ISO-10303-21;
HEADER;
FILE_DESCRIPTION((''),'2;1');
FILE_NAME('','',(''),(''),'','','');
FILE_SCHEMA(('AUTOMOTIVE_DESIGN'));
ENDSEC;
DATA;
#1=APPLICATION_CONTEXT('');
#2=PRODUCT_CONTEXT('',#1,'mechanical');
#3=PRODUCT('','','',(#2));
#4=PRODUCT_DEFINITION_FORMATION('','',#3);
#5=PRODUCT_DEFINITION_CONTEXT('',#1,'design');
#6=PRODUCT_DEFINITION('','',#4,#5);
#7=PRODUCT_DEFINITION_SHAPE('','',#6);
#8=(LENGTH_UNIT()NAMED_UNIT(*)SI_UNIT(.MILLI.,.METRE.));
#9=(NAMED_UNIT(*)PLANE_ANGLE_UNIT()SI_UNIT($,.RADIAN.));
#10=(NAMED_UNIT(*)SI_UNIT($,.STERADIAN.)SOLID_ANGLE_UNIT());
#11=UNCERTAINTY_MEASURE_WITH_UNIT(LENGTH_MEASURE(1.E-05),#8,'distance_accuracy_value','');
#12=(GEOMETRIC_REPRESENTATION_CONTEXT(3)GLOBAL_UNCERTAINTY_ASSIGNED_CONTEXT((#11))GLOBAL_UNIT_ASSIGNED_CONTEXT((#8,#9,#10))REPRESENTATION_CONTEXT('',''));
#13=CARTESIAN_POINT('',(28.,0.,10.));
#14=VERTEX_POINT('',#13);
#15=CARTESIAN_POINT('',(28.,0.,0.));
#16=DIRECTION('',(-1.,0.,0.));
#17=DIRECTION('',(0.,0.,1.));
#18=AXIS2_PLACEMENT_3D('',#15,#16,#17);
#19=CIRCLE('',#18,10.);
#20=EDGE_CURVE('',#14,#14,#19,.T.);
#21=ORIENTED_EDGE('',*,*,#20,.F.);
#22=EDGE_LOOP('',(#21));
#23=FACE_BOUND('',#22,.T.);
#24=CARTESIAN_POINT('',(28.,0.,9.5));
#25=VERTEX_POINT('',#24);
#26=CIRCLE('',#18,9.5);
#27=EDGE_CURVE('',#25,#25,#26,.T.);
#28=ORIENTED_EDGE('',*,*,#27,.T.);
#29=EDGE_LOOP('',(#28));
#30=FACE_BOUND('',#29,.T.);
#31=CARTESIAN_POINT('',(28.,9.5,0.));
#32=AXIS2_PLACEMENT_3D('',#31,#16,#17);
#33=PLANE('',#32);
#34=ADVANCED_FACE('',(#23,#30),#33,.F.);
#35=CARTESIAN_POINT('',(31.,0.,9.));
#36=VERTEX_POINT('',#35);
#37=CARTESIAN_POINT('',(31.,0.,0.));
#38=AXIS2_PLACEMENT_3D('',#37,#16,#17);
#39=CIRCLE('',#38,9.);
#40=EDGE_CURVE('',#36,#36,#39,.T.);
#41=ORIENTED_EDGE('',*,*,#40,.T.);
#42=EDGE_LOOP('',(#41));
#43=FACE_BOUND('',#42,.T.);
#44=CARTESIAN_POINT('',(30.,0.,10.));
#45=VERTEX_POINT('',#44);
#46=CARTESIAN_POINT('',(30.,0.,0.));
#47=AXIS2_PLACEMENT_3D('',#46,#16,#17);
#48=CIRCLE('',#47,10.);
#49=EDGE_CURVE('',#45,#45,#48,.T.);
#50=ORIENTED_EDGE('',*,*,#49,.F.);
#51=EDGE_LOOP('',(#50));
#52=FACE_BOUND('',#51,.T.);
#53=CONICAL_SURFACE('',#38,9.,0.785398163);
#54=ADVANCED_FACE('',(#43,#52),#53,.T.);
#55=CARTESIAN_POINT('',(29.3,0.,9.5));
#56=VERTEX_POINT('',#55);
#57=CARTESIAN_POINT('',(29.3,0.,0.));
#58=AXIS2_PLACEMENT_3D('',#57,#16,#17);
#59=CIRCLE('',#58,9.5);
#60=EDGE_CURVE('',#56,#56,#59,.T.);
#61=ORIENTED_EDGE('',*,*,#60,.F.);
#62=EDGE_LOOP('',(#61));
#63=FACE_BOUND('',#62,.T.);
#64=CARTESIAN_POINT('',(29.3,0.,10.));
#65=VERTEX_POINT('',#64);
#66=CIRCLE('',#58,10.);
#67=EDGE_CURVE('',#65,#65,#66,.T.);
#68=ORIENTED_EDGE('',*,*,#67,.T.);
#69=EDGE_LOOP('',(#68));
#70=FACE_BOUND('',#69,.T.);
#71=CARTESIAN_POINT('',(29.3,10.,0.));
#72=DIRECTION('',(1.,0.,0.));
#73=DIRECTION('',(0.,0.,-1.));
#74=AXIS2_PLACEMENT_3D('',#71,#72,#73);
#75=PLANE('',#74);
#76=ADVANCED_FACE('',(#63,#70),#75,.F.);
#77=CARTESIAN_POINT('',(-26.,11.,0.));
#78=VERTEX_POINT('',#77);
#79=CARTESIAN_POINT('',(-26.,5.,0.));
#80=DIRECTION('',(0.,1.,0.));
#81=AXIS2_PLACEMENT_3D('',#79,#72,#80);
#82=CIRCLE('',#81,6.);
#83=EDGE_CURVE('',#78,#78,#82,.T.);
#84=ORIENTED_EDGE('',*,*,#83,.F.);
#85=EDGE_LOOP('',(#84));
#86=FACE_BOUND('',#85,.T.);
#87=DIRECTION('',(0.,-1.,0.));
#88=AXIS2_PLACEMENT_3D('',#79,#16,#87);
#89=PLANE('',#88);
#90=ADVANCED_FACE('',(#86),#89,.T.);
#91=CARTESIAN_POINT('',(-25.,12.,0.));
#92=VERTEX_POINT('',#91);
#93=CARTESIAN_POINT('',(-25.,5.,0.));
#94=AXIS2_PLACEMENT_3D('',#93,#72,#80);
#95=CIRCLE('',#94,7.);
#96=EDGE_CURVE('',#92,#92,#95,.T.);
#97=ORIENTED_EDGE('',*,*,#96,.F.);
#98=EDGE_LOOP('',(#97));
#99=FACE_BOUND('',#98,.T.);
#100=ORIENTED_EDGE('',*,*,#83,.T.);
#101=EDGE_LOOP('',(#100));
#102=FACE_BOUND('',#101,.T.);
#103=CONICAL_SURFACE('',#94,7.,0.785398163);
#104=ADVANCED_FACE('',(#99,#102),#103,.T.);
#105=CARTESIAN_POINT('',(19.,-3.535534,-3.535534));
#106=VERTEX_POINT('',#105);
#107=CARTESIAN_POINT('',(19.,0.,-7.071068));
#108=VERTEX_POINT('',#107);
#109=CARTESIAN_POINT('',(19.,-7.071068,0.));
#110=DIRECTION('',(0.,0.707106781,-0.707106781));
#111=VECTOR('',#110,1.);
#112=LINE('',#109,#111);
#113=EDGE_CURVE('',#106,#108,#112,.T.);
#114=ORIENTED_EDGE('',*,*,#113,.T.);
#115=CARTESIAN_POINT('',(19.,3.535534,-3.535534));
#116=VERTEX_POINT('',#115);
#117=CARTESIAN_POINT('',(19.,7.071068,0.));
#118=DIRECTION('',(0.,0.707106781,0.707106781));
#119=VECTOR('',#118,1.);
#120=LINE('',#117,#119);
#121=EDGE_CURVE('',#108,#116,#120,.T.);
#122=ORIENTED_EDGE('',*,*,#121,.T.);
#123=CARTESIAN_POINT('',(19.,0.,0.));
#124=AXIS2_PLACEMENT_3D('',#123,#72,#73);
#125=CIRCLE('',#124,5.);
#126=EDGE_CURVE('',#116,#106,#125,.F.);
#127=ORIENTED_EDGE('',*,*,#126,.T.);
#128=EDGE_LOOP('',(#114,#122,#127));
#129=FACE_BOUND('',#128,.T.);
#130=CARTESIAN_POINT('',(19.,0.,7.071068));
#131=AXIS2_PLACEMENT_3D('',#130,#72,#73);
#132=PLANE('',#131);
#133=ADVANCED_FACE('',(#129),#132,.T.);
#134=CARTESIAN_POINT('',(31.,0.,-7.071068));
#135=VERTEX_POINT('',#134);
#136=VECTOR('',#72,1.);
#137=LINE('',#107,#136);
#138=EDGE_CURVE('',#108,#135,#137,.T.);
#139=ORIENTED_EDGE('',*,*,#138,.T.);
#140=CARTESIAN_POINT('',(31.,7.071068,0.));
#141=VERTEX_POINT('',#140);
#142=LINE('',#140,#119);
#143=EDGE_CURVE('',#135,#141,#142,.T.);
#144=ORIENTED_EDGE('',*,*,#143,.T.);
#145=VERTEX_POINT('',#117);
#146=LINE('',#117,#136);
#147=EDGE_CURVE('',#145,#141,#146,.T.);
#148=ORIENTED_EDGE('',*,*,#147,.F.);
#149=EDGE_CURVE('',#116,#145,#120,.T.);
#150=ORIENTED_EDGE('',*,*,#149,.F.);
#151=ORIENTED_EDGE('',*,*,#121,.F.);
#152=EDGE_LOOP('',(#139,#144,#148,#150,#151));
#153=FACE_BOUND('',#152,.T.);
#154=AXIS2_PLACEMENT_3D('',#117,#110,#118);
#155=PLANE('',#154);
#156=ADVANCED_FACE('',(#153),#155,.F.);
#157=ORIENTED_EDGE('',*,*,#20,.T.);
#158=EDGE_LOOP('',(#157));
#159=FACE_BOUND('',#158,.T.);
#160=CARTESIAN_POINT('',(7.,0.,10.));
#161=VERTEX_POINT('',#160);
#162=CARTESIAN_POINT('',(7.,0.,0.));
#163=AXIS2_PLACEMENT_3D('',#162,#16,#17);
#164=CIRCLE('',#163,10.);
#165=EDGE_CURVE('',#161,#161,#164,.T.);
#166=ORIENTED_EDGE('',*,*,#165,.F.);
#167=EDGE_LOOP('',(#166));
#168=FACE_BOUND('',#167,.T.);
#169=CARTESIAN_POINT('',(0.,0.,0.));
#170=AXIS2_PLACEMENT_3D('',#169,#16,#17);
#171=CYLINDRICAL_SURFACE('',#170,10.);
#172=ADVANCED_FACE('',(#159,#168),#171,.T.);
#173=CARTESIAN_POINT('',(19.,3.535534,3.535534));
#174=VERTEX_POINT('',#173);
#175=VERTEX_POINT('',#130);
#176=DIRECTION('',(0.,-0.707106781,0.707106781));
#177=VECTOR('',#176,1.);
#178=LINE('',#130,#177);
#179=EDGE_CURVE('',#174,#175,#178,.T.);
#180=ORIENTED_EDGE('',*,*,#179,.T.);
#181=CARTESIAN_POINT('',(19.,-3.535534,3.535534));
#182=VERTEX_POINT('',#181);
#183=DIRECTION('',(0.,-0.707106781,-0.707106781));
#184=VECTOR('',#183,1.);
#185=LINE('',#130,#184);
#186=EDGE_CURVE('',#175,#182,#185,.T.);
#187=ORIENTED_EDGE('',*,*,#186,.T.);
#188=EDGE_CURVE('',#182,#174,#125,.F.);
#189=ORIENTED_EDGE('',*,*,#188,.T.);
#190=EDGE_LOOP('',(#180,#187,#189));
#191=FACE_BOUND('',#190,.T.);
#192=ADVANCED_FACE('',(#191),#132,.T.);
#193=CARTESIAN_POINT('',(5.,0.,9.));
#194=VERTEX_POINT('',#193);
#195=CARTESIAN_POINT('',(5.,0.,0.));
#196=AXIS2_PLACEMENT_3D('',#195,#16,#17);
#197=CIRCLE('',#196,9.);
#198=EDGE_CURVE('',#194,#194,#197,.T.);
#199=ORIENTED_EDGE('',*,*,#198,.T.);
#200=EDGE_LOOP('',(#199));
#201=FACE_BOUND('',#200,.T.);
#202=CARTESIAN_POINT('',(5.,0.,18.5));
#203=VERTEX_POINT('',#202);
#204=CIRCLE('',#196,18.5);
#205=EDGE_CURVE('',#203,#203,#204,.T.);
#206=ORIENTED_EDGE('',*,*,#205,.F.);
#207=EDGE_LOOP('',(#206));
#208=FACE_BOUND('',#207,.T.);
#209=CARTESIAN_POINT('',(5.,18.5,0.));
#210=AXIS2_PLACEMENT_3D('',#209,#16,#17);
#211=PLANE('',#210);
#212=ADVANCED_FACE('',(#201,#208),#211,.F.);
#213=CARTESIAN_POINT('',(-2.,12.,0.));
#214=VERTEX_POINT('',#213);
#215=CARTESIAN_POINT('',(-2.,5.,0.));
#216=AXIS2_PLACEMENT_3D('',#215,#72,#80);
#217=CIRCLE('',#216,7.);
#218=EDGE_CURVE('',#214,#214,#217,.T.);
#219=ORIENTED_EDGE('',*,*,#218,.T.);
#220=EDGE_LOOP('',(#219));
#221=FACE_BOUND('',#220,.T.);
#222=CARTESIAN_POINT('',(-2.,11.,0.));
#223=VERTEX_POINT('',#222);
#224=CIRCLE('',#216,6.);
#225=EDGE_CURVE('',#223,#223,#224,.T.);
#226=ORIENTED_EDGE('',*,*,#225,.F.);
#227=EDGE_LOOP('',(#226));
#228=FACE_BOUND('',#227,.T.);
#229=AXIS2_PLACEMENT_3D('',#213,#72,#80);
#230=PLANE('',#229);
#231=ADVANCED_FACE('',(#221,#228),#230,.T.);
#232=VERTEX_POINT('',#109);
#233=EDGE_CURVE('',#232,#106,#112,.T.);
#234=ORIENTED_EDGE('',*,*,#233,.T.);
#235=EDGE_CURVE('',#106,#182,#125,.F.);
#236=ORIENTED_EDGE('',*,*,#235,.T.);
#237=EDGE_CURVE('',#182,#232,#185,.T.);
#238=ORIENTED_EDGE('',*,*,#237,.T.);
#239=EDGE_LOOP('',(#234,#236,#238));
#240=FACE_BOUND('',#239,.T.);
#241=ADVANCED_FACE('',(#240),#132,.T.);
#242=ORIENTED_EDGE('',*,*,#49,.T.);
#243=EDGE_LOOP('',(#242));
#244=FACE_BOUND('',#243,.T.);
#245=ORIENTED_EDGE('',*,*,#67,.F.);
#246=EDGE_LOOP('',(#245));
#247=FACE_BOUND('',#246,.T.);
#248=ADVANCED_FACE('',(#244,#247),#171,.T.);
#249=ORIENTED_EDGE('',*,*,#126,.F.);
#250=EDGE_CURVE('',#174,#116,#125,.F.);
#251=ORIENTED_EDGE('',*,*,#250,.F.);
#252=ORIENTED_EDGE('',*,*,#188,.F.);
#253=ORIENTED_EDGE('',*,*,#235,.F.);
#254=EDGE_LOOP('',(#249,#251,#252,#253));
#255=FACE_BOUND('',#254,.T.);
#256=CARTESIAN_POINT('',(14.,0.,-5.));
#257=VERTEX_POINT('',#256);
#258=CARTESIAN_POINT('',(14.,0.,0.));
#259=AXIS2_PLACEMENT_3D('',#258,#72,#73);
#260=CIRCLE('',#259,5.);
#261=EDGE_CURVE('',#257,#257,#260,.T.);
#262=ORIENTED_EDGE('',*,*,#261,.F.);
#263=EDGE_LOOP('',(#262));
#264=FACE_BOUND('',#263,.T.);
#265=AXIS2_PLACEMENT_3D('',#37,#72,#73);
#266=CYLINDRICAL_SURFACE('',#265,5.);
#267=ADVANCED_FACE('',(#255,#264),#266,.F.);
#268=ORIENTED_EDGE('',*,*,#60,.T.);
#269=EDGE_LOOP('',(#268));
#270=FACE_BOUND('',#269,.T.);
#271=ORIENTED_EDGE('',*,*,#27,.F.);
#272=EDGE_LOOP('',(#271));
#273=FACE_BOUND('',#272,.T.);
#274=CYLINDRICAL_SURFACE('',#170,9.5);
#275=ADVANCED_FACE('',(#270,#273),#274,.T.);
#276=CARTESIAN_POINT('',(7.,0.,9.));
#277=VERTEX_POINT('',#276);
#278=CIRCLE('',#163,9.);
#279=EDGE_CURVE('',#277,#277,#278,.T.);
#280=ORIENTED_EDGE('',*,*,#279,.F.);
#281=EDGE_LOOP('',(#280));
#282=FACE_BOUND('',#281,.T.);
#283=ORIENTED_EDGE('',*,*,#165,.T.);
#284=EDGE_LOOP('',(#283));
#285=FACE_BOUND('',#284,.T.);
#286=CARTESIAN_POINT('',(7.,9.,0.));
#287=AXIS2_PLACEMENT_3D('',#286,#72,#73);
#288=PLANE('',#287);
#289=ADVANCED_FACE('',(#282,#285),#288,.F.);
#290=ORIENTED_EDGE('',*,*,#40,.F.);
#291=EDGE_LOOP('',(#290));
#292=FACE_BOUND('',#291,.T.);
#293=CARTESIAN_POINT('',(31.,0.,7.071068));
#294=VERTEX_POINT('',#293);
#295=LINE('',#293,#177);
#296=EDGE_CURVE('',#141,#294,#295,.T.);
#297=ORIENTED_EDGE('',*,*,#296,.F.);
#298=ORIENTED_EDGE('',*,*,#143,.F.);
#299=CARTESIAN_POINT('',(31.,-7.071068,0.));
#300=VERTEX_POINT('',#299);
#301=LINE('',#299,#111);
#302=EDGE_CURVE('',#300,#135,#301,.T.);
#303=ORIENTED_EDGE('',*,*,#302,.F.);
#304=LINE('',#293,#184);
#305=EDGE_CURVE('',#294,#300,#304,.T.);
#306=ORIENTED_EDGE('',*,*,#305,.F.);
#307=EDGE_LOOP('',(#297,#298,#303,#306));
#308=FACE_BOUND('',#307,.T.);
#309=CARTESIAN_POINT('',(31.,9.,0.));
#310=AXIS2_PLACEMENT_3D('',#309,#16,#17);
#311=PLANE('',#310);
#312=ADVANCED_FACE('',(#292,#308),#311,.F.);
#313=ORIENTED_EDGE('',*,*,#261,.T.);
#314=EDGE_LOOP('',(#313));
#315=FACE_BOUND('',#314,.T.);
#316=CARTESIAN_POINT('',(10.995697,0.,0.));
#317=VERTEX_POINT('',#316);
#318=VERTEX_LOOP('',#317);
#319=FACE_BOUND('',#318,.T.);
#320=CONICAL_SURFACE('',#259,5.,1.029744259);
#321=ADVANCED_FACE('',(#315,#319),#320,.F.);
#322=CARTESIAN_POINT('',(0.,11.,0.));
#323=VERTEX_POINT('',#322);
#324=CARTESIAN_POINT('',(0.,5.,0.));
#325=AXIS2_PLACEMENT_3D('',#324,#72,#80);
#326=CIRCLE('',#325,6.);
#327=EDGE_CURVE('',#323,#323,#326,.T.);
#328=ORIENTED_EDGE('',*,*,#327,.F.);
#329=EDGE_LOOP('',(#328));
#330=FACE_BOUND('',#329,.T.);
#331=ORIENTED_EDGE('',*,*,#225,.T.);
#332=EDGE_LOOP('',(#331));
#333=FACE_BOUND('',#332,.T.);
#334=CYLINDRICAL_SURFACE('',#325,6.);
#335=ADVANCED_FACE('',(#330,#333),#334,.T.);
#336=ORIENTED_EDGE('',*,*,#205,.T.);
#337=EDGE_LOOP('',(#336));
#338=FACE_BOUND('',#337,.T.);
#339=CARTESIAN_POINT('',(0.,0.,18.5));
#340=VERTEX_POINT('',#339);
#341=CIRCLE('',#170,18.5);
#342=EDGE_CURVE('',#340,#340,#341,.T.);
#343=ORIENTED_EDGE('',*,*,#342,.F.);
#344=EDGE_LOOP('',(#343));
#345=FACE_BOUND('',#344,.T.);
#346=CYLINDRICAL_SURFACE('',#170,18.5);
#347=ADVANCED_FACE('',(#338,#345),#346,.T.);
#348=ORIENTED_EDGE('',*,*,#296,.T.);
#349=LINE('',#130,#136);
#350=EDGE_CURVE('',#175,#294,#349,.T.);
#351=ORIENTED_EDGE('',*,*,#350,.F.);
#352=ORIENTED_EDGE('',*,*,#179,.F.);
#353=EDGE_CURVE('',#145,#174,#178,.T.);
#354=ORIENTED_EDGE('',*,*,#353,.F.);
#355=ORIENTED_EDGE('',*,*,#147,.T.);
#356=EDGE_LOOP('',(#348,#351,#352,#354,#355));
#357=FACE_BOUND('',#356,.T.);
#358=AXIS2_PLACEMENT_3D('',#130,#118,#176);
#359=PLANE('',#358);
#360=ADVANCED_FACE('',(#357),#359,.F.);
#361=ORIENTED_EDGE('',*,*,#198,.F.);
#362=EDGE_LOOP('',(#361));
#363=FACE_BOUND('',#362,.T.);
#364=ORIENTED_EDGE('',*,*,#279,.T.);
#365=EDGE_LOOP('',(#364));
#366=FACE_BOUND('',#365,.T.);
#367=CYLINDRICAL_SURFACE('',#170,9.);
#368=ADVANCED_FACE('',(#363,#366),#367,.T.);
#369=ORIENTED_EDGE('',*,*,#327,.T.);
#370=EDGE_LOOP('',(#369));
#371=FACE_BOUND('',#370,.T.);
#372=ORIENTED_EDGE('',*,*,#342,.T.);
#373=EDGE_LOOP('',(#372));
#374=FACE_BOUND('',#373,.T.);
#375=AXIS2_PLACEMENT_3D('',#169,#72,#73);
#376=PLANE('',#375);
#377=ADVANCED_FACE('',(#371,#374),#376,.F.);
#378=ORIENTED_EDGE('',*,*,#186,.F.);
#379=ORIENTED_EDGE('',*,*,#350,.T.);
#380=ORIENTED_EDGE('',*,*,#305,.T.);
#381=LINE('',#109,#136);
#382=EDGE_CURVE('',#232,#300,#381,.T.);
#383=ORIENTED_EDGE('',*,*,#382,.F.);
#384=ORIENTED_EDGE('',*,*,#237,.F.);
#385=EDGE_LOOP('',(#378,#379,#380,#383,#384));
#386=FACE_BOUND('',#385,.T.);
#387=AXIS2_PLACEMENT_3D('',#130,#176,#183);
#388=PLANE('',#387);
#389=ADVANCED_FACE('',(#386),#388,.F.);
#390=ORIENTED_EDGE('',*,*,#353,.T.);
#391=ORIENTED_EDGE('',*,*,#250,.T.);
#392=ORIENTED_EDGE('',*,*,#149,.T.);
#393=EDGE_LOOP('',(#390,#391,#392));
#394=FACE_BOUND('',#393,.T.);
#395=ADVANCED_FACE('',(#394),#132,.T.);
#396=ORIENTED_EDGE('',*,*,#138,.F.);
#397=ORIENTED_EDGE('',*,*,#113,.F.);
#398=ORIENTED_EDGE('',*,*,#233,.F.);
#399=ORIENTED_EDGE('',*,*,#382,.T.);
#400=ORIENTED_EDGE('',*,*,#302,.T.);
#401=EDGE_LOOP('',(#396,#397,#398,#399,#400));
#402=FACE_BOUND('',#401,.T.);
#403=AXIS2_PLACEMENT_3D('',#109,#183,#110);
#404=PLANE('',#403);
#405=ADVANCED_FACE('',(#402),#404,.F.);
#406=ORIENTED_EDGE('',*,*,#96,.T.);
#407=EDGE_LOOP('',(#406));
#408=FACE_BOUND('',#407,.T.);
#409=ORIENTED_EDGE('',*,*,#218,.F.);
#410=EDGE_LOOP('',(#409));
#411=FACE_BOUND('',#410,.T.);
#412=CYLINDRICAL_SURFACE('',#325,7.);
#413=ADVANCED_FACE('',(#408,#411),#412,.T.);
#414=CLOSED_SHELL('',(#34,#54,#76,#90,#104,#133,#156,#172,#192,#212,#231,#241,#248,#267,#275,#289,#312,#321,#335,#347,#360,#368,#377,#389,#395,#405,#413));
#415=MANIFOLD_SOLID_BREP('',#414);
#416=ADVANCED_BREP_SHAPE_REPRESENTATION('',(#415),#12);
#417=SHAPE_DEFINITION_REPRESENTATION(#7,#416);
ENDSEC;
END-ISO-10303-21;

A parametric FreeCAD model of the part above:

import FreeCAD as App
import Part
import Sketcher

V = App.Vector
Q = App.Units.Quantity

doc = App.newDocument("Part")
body = doc.addObject("PartDesign::Body", "Body")

sketch1 = body.newObject("Sketcher::SketchObject", "Sketch")
sketch1.AttachmentSupport = (doc.getObject("XY_Plane"), [""])
sketch1.MapMode = "FlatFace"
sketch1.addGeometry([
    Part.LineSegment(V(0, 18.5, 0), V(0, 0, 0)),
    Part.LineSegment(V(0, 0, 0), V(31, 0, 0)),
    Part.LineSegment(V(31, 0, 0), V(31, 9, 0)),
    Part.LineSegment(V(31, 9, 0), V(30, 10, 0)),
    Part.LineSegment(V(30, 10, 0), V(29.3, 10, 0)),
    Part.LineSegment(V(29.3, 10, 0), V(29.3, 9.5, 0)),
    Part.LineSegment(V(29.3, 9.5, 0), V(28, 9.5, 0)),
    Part.LineSegment(V(28, 9.5, 0), V(28, 10, 0)),
    Part.LineSegment(V(28, 10, 0), V(7, 10, 0)),
    Part.LineSegment(V(7, 10, 0), V(7, 9, 0)),
    Part.LineSegment(V(7, 9, 0), V(5, 9, 0)),
    Part.LineSegment(V(5, 9, 0), V(5, 18.5, 0)),
    Part.LineSegment(V(5, 18.5, 0), V(0, 18.5, 0)),
], False)
sketch1.addConstraint([
    Sketcher.Constraint("Coincident", 0, 2, 1, 1),
    Sketcher.Constraint("Coincident", 1, 2, 2, 1),
    Sketcher.Constraint("Coincident", 2, 2, 3, 1),
    Sketcher.Constraint("Coincident", 3, 2, 4, 1),
    Sketcher.Constraint("Coincident", 4, 2, 5, 1),
    Sketcher.Constraint("Coincident", 5, 2, 6, 1),
    Sketcher.Constraint("Coincident", 6, 2, 7, 1),
    Sketcher.Constraint("Coincident", 7, 2, 8, 1),
    Sketcher.Constraint("Coincident", 8, 2, 9, 1),
    Sketcher.Constraint("Coincident", 9, 2, 10, 1),
    Sketcher.Constraint("Coincident", 10, 2, 11, 1),
    Sketcher.Constraint("Coincident", 11, 2, 12, 1),
    Sketcher.Constraint("Coincident", 12, 2, 0, 1),
    Sketcher.Constraint("Vertical", 0),
    Sketcher.Constraint("Horizontal", 1),
    Sketcher.Constraint("Vertical", 2),
    Sketcher.Constraint("Horizontal", 4),
    Sketcher.Constraint("Vertical", 5),
    Sketcher.Constraint("Horizontal", 6),
    Sketcher.Constraint("Vertical", 7),
    Sketcher.Constraint("Horizontal", 8),
    Sketcher.Constraint("Vertical", 9),
    Sketcher.Constraint("Horizontal", 10),
    Sketcher.Constraint("Vertical", 11),
    Sketcher.Constraint("Horizontal", 12),
    Sketcher.Constraint("Coincident", 0, 2, -1, 1),
    Sketcher.Constraint("Horizontal", 4, 2, 7, 2),
    Sketcher.Constraint("Horizontal", 2, 2, 9, 2),
    Sketcher.Constraint("DistanceX", 1, 1, 1, 2, Q("31 mm")),
    Sketcher.Constraint("DistanceX", 8, 2, 8, 1, Q("21 mm")),
    Sketcher.Constraint("DistanceX", 10, 2, 10, 1, Q("2 mm")),
    Sketcher.Constraint("DistanceX", 12, 2, 12, 1, Q("5 mm")),
    Sketcher.Constraint("DistanceY", 2, 1, 2, 2, Q("9 mm")),
    Sketcher.Constraint("DistanceY", 9, 2, 9, 1, Q("1 mm")),
    Sketcher.Constraint("Angle", 3, Q("135 deg")),
    Sketcher.Constraint("DistanceX", 4, 2, 4, 1, Q("0.7 mm")),
    Sketcher.Constraint("DistanceY", 0, 2, 0, 1, Q("18.5 mm")),
    Sketcher.Constraint("DistanceY", 5, 2, 5, 1, Q("0.5 mm")),
])
revolution = body.newObject("PartDesign::Revolution", "Revolution")
revolution.Profile = sketch1
revolution.ReferenceAxis = (sketch1, ["H_Axis"])
revolution.Angle = 360

sketch2 = body.newObject("Sketcher::SketchObject", "Sketch001")
sketch2.AttachmentSupport = (doc.getObject("XY_Plane"), [""])
sketch2.MapMode = "FlatFace"
sketch2.addGeometry([
    Part.LineSegment(V(-26, 11, 0), V(-26, 5, 0)),
    Part.LineSegment(V(-26, 5, 0), V(0, 5, 0)),
    Part.LineSegment(V(0, 5, 0), V(0, 11, 0)),
    Part.LineSegment(V(0, 11, 0), V(-2, 11, 0)),
    Part.LineSegment(V(-2, 11, 0), V(-2, 12, 0)),
    Part.LineSegment(V(-2, 12, 0), V(-25, 12, 0)),
    Part.LineSegment(V(-25, 12, 0), V(-26, 11, 0)),
], False)
sketch2.addGeometry(Part.LineSegment(V(0, 5, 0), V(-26, 5, 0)), True)
sketch2.addConstraint([
    Sketcher.Constraint("Coincident", 0, 2, 1, 1),
    Sketcher.Constraint("Coincident", 1, 2, 2, 1),
    Sketcher.Constraint("Coincident", 2, 2, 3, 1),
    Sketcher.Constraint("Coincident", 3, 2, 4, 1),
    Sketcher.Constraint("Coincident", 4, 2, 5, 1),
    Sketcher.Constraint("Coincident", 5, 2, 6, 1),
    Sketcher.Constraint("Coincident", 6, 2, 0, 1),
    Sketcher.Constraint("Vertical", 0),
    Sketcher.Constraint("Horizontal", 1),
    Sketcher.Constraint("Vertical", 2),
    Sketcher.Constraint("Horizontal", 3),
    Sketcher.Constraint("Vertical", 4),
    Sketcher.Constraint("Horizontal", 5),
    Sketcher.Constraint("Horizontal", 7),
    Sketcher.Constraint("Coincident", 7, 1, 1, 2),
    Sketcher.Constraint("PointOnObject", 1, 2, -2),
    Sketcher.Constraint("Horizontal", 3, 2, 6, 2),
    Sketcher.Constraint("Vertical", 6, 2, 7, 2),
    Sketcher.Constraint("DistanceX", 1, 1, 1, 2, Q("26 mm")),
    Sketcher.Constraint("DistanceX", 3, 2, 3, 1, Q("2 mm")),
    Sketcher.Constraint("DistanceX", 5, 2, 5, 1, Q("23 mm")),
    Sketcher.Constraint("DistanceY", 0, 2, 0, 1, Q("6 mm")),
    Sketcher.Constraint("DistanceY", 4, 1, 4, 2, Q("1 mm")),
    Sketcher.Constraint("DistanceY", -1, 1, 0, 2, Q("5 mm")),
])
revolution2 = body.newObject("PartDesign::Revolution", "Revolution001")
revolution2.Profile = sketch2
revolution2.ReferenceAxis = (sketch2, ["Axis0"])
revolution2.Angle = 360

sketch3 = body.newObject("Sketcher::SketchObject", "Sketch002")
sketch3.AttachmentSupport = (doc.getObject("YZ_Plane"), [""])
sketch3.MapMode = "FlatFace"
sketch3.AttachmentOffset = App.Placement(V(0, 0, 31), App.Rotation())
sketch3.addGeometry(Part.Circle(V(0, 0, 0), V(0, 0, 1), 5), False)
sketch3.addConstraint([
    Sketcher.Constraint("Coincident", 0, 3, -1, 1),
    Sketcher.Constraint("Diameter", 0, Q("10 mm")),
])
doc.recompute()
hole = body.newObject("PartDesign::Hole", "Hole")
hole.Profile = sketch3
hole.ThreadType = "None"
hole.Diameter = 10
hole.DepthType = "Dimension"
hole.Depth = 17
hole.DrillPoint = "Angled"
hole.DrillPointAngle = 118

sketch4 = body.newObject("Sketcher::SketchObject", "Sketch003")
sketch4.AttachmentSupport = (doc.getObject("YZ_Plane"), [""])
sketch4.MapMode = "FlatFace"
sketch4.AttachmentOffset = App.Placement(V(0, 0, 31), App.Rotation())
sketch4.addGeometry([
    Part.LineSegment(V(7.071068, 0, 0), V(0, 7.071068, 0)),
    Part.LineSegment(V(0, 7.071068, 0), V(-7.071068, 0, 0)),
    Part.LineSegment(V(-7.071068, 0, 0), V(0, -7.071068, 0)),
    Part.LineSegment(V(0, -7.071068, 0), V(7.071068, 0, 0)),
], False)
sketch4.addConstraint([
    Sketcher.Constraint("Coincident", 0, 2, 1, 1),
    Sketcher.Constraint("Coincident", 1, 2, 2, 1),
    Sketcher.Constraint("Coincident", 2, 2, 3, 1),
    Sketcher.Constraint("Coincident", 3, 2, 0, 1),
    Sketcher.Constraint("Symmetric", 0, 2, 2, 2, -1, 1),
    Sketcher.Constraint("Symmetric", 1, 2, 3, 2, -1, 1),
    Sketcher.Constraint("PointOnObject", 0, 2, -2),
    Sketcher.Constraint("PointOnObject", 1, 2, -1),
    Sketcher.Constraint("Perpendicular", 0, 1),
    Sketcher.Constraint("Distance", 0, Q("10 mm")),
])
pocket1 = body.newObject("PartDesign::Pocket", "Pocket")
pocket1.Profile = sketch4
pocket1.Length = 12

doc.recompute()
